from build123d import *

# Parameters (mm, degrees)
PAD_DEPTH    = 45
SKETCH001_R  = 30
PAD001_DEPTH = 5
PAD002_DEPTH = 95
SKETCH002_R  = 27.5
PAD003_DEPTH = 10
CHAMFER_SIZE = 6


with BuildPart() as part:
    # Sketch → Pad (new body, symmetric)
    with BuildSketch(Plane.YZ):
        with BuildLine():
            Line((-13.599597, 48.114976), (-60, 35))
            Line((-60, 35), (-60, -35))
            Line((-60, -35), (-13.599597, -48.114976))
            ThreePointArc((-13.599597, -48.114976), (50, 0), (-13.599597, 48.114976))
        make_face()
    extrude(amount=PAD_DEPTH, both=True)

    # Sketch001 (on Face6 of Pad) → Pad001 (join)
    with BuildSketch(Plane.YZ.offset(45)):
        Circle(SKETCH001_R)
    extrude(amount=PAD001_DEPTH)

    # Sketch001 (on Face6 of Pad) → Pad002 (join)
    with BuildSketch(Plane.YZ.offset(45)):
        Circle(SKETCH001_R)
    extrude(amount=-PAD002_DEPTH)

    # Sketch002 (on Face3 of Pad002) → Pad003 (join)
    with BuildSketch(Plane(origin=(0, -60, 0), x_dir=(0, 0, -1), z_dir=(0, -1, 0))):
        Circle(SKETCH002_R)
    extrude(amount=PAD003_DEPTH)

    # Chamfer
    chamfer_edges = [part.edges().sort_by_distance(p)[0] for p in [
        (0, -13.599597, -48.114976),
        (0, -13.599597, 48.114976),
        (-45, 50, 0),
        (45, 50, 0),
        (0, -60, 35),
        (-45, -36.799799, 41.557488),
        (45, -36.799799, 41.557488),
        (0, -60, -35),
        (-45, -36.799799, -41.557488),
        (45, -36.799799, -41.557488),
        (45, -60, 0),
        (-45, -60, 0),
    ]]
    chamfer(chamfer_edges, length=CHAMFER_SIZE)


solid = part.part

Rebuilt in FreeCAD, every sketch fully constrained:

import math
import FreeCAD as App
import Part
import Sketcher

V = App.Vector


def edges_at(feature, points):
    """Names of the edges that pass closest to the given points."""
    edges = feature.Shape.Edges
    near = lambda p: min(range(len(edges)), key=lambda i: edges[i].distToShape(Part.Vertex(*p))[0])
    return sorted({f"Edge{near(p) + 1}" for p in points})

doc = App.newDocument("Part")
body = doc.addObject("PartDesign::Body", "Body")

# Sketch on YZ plane
sketch1 = body.newObject("Sketcher::SketchObject", "Sketch")
sketch1.AttachmentSupport = (doc.getObject("YZ_Plane"), [""])
sketch1.MapMode = "FlatFace"
sketch1.addGeometry(Part.LineSegment(V(-14, 48, 0), V(-60, 35, 0)), False)
sketch1.addGeometry(Part.LineSegment(V(-60, 35, 0), V(-60, -35, 0)), False)
sketch1.addGeometry(Part.LineSegment(V(-60, -35, 0), V(-14, -48, 0)), False)
sketch1.addGeometry(Part.ArcOfCircle(Part.Circle(V(0, 0, 0), V(0, 0, 1), 50), math.radians(-106), math.radians(106)), False)
sketch1.addConstraint(Sketcher.Constraint("Coincident", 0, 2, 1, 1))
sketch1.addConstraint(Sketcher.Constraint("Coincident", 1, 2, 2, 1))
sketch1.addConstraint(Sketcher.Constraint("Tangent", 2, 2, 3, 1))
sketch1.addConstraint(Sketcher.Constraint("Tangent", 3, 2, 0, 1))
sketch1.addConstraint(Sketcher.Constraint("Vertical", 1))
sketch1.addConstraint(Sketcher.Constraint("Coincident", 3, 3, -1, 1))
sketch1.addConstraint(Sketcher.Constraint("Vertical", 2, 2, 3, 2))
sketch1.addConstraint(Sketcher.Constraint("Radius", 3, 50.0))
sketch1.addConstraint(Sketcher.Constraint("DistanceY", 1, 2, 1, 1, 70.0))
sketch1.addConstraint(Sketcher.Constraint("DistanceX", 0, 2, -1, 1, 60.0))
pad1 = body.newObject("PartDesign::Pad", "Pad")
pad1.Profile = sketch1
pad1.Length = 90
pad1.Midplane = True

# Sketch on YZ plane
sketch2 = body.newObject("Sketcher::SketchObject", "Sketch001")
sketch2.AttachmentSupport = (doc.getObject("YZ_Plane"), [""])
sketch2.MapMode = "FlatFace"
sketch2.AttachmentOffset = App.Placement(V(0, 0, 45), App.Rotation())
sketch2.addGeometry(Part.Circle(V(0, 0, 0), V(0, 0, 1), 30), False)
sketch2.addConstraint(Sketcher.Constraint("Coincident", 0, 3, -1, 1))
sketch2.addConstraint(Sketcher.Constraint("Diameter", 0, 60.0))
pad2 = body.newObject("PartDesign::Pad", "Pad001")
pad2.Profile = sketch2
pad2.Length = 5

# Sketch on YZ plane
sketch3 = body.newObject("Sketcher::SketchObject", "Sketch002")
sketch3.AttachmentSupport = (doc.getObject("YZ_Plane"), [""])
sketch3.MapMode = "FlatFace"
sketch3.AttachmentOffset = App.Placement(V(0, 0, 45), App.Rotation())
sketch3.addGeometry(Part.Circle(V(0, 0, 0), V(0, 0, 1), 30), False)
sketch3.addConstraint(Sketcher.Constraint("Coincident", 0, 3, -1, 1))
sketch3.addConstraint(Sketcher.Constraint("Diameter", 0, 60.0))
pad3 = body.newObject("PartDesign::Pad", "Pad002")
pad3.Profile = sketch3
pad3.Length = 95
pad3.Reversed = True

# Sketch on XZ plane
sketch4 = body.newObject("Sketcher::SketchObject", "Sketch003")
sketch4.AttachmentSupport = (doc.getObject("XZ_Plane"), [""])
sketch4.MapMode = "FlatFace"
sketch4.AttachmentOffset = App.Placement(V(0, 0, 60), App.Rotation())
sketch4.addGeometry(Part.Circle(V(0, 0, 0), V(0, 0, 1), 28), False)
sketch4.addConstraint(Sketcher.Constraint("Coincident", 0, 3, -1, 1))
sketch4.addConstraint(Sketcher.Constraint("Diameter", 0, 55.0))
pad4 = body.newObject("PartDesign::Pad", "Pad003")
pad4.Profile = sketch4
pad4.Length = 10
doc.recompute()

chamfer = body.newObject("PartDesign::Chamfer", "Chamfer")
chamfer.Base = (pad4, edges_at(pad4, [
    (0, -13.6, -48.115),
    (0, -13.6, 48.115),
    (-45, 50, 0),
    (45, 50, 0),
    (0, -60, 35),
    (-45, -36.8, 41.557),
    (45, -36.8, 41.557),
    (0, -60, -35),
    (-45, -36.8, -41.557),
    (45, -36.8, -41.557),
    (45, -60, 0),
    (-45, -60, 0),
]))
chamfer.Size = 6

doc.recompute()
